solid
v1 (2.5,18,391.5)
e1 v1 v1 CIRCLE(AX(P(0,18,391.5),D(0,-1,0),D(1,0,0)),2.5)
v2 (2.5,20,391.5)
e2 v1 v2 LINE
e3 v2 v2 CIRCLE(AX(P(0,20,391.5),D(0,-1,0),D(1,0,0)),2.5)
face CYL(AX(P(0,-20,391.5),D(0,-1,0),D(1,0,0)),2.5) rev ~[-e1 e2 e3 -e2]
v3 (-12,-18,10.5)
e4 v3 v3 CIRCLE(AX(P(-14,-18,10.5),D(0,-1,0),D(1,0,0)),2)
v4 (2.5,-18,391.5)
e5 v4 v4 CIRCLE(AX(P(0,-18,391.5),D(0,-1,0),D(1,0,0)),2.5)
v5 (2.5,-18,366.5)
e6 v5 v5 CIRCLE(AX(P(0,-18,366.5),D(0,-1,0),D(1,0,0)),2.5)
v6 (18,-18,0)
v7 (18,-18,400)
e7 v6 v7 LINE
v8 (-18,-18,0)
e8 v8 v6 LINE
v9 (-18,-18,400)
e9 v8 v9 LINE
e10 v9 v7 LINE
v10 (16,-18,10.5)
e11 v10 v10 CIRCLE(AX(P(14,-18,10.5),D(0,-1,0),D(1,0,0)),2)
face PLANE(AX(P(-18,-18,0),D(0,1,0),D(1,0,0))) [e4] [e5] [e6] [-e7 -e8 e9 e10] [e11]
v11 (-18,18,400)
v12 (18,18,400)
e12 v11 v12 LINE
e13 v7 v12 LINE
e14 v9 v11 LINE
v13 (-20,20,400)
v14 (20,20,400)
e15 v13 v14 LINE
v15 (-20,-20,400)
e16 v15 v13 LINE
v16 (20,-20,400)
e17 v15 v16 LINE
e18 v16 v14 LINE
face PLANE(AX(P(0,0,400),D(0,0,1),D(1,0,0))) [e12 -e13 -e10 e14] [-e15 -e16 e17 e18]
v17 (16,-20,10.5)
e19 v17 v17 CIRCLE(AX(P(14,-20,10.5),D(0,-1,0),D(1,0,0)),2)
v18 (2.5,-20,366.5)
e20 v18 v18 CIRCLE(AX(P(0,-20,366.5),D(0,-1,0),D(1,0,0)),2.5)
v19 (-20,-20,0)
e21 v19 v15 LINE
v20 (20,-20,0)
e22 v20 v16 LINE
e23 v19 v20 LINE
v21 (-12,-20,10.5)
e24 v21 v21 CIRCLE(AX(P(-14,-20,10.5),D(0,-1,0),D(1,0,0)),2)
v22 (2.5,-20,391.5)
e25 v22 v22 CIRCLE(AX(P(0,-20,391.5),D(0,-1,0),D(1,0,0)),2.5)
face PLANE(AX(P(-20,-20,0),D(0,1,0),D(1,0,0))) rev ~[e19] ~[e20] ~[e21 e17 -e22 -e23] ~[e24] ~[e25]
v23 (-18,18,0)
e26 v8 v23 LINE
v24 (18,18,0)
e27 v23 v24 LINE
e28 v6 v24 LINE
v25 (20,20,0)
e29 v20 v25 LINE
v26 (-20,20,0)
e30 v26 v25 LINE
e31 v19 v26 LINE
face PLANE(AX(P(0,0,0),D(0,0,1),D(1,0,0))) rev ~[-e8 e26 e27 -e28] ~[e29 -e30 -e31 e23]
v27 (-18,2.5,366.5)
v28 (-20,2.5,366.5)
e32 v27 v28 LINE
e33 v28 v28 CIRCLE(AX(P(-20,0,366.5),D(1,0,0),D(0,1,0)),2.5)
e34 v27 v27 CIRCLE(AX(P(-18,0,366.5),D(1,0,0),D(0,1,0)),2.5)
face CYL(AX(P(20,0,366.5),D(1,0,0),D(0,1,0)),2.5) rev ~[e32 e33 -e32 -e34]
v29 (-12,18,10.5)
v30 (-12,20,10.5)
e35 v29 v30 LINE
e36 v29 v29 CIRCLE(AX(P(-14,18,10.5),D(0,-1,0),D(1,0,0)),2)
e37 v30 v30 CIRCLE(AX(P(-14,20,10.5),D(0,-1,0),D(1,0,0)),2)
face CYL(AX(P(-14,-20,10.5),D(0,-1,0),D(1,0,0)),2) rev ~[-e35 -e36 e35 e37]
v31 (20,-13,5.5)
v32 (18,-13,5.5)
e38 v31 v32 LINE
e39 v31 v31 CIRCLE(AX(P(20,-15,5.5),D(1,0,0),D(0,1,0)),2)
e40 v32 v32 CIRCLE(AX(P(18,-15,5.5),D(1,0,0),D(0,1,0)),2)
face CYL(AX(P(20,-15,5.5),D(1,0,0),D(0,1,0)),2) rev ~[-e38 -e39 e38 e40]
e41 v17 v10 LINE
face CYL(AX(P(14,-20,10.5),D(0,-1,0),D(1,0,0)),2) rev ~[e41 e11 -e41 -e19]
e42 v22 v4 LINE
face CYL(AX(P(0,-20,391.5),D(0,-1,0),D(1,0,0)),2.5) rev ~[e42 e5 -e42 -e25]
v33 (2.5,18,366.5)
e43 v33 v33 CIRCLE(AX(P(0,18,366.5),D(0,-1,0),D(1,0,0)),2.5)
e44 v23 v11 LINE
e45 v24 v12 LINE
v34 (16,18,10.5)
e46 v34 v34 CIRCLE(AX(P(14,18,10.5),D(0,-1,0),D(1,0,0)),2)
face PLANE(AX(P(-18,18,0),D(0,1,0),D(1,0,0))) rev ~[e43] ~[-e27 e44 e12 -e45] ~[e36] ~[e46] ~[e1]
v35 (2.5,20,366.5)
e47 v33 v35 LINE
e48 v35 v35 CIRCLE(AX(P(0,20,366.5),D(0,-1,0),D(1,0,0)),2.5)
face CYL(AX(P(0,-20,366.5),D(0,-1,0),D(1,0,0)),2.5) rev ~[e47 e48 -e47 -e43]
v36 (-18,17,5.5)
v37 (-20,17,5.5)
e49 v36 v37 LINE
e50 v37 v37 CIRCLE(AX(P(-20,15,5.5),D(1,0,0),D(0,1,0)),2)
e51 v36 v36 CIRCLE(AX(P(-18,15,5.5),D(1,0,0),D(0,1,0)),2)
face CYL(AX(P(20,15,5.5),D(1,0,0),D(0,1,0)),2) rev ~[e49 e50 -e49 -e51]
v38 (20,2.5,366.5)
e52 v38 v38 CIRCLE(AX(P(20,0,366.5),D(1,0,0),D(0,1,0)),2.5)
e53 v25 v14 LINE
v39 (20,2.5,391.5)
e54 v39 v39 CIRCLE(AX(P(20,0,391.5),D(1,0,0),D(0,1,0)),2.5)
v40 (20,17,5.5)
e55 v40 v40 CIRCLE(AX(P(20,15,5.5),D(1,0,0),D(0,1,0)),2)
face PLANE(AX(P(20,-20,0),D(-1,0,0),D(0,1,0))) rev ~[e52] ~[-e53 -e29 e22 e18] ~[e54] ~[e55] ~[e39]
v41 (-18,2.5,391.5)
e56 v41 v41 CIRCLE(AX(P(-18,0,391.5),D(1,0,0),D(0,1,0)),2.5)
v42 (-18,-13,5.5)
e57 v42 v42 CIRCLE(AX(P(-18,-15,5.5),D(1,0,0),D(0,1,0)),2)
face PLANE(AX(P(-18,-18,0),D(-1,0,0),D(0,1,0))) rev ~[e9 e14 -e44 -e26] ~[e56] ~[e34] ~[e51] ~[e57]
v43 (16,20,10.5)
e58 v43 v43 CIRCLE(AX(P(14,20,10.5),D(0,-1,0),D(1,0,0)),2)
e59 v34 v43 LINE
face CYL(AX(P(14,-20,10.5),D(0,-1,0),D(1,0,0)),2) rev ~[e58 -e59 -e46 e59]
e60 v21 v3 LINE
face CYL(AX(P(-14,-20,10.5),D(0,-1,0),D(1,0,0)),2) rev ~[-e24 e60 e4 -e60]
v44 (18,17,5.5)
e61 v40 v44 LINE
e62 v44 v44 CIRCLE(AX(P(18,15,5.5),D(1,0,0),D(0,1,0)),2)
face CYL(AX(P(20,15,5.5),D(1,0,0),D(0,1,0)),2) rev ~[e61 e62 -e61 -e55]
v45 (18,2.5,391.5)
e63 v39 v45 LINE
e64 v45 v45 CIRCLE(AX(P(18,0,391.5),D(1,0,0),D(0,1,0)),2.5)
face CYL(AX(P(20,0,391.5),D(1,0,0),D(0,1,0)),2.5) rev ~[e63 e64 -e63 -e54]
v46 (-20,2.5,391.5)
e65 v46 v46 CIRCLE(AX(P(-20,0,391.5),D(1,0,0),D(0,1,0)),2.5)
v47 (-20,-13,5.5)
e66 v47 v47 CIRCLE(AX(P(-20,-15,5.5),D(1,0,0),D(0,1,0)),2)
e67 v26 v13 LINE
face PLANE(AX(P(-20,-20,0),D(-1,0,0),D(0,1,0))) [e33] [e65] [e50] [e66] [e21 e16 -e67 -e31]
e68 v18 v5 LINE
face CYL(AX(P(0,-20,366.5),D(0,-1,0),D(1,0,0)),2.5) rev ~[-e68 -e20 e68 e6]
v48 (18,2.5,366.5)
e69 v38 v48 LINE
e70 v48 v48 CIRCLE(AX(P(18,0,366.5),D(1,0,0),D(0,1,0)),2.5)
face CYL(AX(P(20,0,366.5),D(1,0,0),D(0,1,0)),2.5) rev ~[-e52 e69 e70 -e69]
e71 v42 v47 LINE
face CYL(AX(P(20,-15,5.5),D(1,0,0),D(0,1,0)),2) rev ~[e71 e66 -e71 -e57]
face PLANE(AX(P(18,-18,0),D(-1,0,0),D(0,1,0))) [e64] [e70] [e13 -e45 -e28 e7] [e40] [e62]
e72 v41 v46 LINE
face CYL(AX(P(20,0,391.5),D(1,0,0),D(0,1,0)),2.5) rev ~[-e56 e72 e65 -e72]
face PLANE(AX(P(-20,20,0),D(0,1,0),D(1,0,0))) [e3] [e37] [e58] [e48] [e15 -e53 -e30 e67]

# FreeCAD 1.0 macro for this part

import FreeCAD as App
import Part
import Sketcher

V = App.Vector
Q = App.Units.Quantity


def add_polygon(sketch, points):
    """Adds a closed chain of lines whose ends are joined by coincident constraints."""
    first, n = sketch.GeometryCount, len(points)
    for a, b in zip(points, points[1:] + points[:1]):
        sketch.addGeometry(Part.LineSegment(App.Vector(*a, 0), App.Vector(*b, 0)), False)
    for i in range(n):
        sketch.addConstraint(Sketcher.Constraint("Coincident", first + i, 2, first + (i + 1) % n, 1))

doc = App.newDocument("Part")
body = doc.addObject("PartDesign::Body", "Body")

# Sketch on XY plane
sketch1 = body.newObject("Sketcher::SketchObject", "Sketch")
sketch1.AttachmentSupport = (doc.getObject("XY_Plane"), [""])
sketch1.MapMode = "FlatFace"
add_polygon(sketch1, [(-20, 20), (-20, -20), (20, -20), (20, 20)])  # lines 0-3
add_polygon(sketch1, [(18, -18), (-18, -18), (-18, 18), (18, 18)])  # lines 4-7
sketch1.addConstraint(Sketcher.Constraint("Vertical", 0))
sketch1.addConstraint(Sketcher.Constraint("Horizontal", 1))
sketch1.addConstraint(Sketcher.Constraint("Vertical", 2))
sketch1.addConstraint(Sketcher.Constraint("Horizontal", 3))
sketch1.addConstraint(Sketcher.Constraint("Horizontal", 4))
sketch1.addConstraint(Sketcher.Constraint("Vertical", 5))
sketch1.addConstraint(Sketcher.Constraint("Horizontal", 6))
sketch1.addConstraint(Sketcher.Constraint("Vertical", 7))
sketch1.addConstraint(Sketcher.Constraint("Symmetric", 0, 2, 2, 2, -1, 1))
sketch1.addConstraint(Sketcher.Constraint("Symmetric", 4, 2, 6, 2, -1, 1))
sketch1.addConstraint(Sketcher.Constraint("Equal", 3, 0))
sketch1.addConstraint(Sketcher.Constraint("Equal", 6, 5))
sketch1.addConstraint(Sketcher.Constraint("DistanceX", 1, 1, 1, 2, Q("40 mm")))
sketch1.addConstraint(Sketcher.Constraint("DistanceX", 4, 2, 4, 1, Q("36 mm")))
pad1 = body.newObject("PartDesign::Pad", "Pad")
pad1.Profile = sketch1
pad1.Length = 400

# Sketch on YZ plane
sketch2 = body.newObject("Sketcher::SketchObject", "Sketch001")
sketch2.AttachmentSupport = (doc.getObject("YZ_Plane"), [""])
sketch2.MapMode = "FlatFace"
sketch2.AttachmentOffset = App.Placement(V(0, 0, 20), App.Rotation())
sketch2.addGeometry(Part.Circle(V(-15, 5.5, 0), V(0, 0, 1), 2), False)
sketch2.addGeometry(Part.Circle(V(15, 5.5, 0), V(0, 0, 1), 2), False)
sketch2.addConstraint(Sketcher.Constraint("Equal", 0, 1))
sketch2.addConstraint(Sketcher.Constraint("Symmetric", 0, 3, 1, 3, -2))
sketch2.addConstraint(Sketcher.Constraint("Diameter", 0, Q("4 mm")))
sketch2.addConstraint(Sketcher.Constraint("DistanceX", 0, 3, -1, 1, Q("15 mm")))
sketch2.addConstraint(Sketcher.Constraint("DistanceY", -1, 1, 0, 3, Q("5.5 mm")))
pocket1 = body.newObject("PartDesign::Pocket", "Pocket")
pocket1.Profile = sketch2
pocket1.Length = 40

# Sketch on XZ plane
sketch3 = body.newObject("Sketcher::SketchObject", "Sketch002")
sketch3.AttachmentSupport = (doc.getObject("XZ_Plane"), [""])
sketch3.MapMode = "FlatFace"
sketch3.AttachmentOffset = App.Placement(V(0, 0, 20), App.Rotation())
sketch3.addGeometry(Part.Circle(V(-14, 10.5, 0), V(0, 0, 1), 2), False)
sketch3.addGeometry(Part.Circle(V(14, 10.5, 0), V(0, 0, 1), 2), False)
sketch3.addConstraint(Sketcher.Constraint("Equal", 0, 1))
sketch3.addConstraint(Sketcher.Constraint("Symmetric", 0, 3, 1, 3, -2))
sketch3.addConstraint(Sketcher.Constraint("Diameter", 0, Q("4 mm")))
sketch3.addConstraint(Sketcher.Constraint("DistanceX", 0, 3, -1, 1, Q("14 mm")))
sketch3.addConstraint(Sketcher.Constraint("DistanceY", -1, 1, 0, 3, Q("10.5 mm")))
pocket2 = body.newObject("PartDesign::Pocket", "Pocket001")
pocket2.Profile = sketch3
pocket2.Length = 40

# Sketch on YZ plane
sketch4 = body.newObject("Sketcher::SketchObject", "Sketch003")
sketch4.AttachmentSupport = (doc.getObject("YZ_Plane"), [""])
sketch4.MapMode = "FlatFace"
sketch4.AttachmentOffset = App.Placement(V(0, 0, 20), App.Rotation())
sketch4.addGeometry(Part.Circle(V(0, 391.5, 0), V(0, 0, 1), 2.5), False)
sketch4.addGeometry(Part.Circle(V(0, 366.5, 0), V(0, 0, 1), 2.5), False)
sketch4.addConstraint(Sketcher.Constraint("Equal", 0, 1))
sketch4.addConstraint(Sketcher.Constraint("PointOnObject", 0, 3, -2))
sketch4.addConstraint(Sketcher.Constraint("PointOnObject", 1, 3, -2))
sketch4.addConstraint(Sketcher.Constraint("Diameter", 0, Q("5 mm")))
sketch4.addConstraint(Sketcher.Constraint("DistanceY", 1, 3, 0, 3, Q("25 mm")))
sketch4.addConstraint(Sketcher.Constraint("DistanceY", -1, 1, 0, 3, Q("391.5 mm")))
pocket3 = body.newObject("PartDesign::Pocket", "Pocket002")
pocket3.Profile = sketch4
pocket3.Length = 40

# Sketch on XZ plane
sketch5 = body.newObject("Sketcher::SketchObject", "Sketch004")
sketch5.AttachmentSupport = (doc.getObject("XZ_Plane"), [""])
sketch5.MapMode = "FlatFace"
sketch5.AttachmentOffset = App.Placement(V(0, 0, 20), App.Rotation())
sketch5.addGeometry(Part.Circle(V(0, 391.5, 0), V(0, 0, 1), 2.5), False)
sketch5.addGeometry(Part.Circle(V(0, 366.5, 0), V(0, 0, 1), 2.5), False)
sketch5.addConstraint(Sketcher.Constraint("Equal", 0, 1))
sketch5.addConstraint(Sketcher.Constraint("PointOnObject", 0, 3, -2))
sketch5.addConstraint(Sketcher.Constraint("PointOnObject", 1, 3, -2))
sketch5.addConstraint(Sketcher.Constraint("Diameter", 0, Q("5 mm")))
sketch5.addConstraint(Sketcher.Constraint("DistanceY", 1, 3, 0, 3, Q("25 mm")))
sketch5.addConstraint(Sketcher.Constraint("DistanceY", -1, 1, 0, 3, Q("391.5 mm")))
pocket4 = body.newObject("PartDesign::Pocket", "Pocket003")
pocket4.Profile = sketch5
pocket4.Length = 40

doc.recompute()
